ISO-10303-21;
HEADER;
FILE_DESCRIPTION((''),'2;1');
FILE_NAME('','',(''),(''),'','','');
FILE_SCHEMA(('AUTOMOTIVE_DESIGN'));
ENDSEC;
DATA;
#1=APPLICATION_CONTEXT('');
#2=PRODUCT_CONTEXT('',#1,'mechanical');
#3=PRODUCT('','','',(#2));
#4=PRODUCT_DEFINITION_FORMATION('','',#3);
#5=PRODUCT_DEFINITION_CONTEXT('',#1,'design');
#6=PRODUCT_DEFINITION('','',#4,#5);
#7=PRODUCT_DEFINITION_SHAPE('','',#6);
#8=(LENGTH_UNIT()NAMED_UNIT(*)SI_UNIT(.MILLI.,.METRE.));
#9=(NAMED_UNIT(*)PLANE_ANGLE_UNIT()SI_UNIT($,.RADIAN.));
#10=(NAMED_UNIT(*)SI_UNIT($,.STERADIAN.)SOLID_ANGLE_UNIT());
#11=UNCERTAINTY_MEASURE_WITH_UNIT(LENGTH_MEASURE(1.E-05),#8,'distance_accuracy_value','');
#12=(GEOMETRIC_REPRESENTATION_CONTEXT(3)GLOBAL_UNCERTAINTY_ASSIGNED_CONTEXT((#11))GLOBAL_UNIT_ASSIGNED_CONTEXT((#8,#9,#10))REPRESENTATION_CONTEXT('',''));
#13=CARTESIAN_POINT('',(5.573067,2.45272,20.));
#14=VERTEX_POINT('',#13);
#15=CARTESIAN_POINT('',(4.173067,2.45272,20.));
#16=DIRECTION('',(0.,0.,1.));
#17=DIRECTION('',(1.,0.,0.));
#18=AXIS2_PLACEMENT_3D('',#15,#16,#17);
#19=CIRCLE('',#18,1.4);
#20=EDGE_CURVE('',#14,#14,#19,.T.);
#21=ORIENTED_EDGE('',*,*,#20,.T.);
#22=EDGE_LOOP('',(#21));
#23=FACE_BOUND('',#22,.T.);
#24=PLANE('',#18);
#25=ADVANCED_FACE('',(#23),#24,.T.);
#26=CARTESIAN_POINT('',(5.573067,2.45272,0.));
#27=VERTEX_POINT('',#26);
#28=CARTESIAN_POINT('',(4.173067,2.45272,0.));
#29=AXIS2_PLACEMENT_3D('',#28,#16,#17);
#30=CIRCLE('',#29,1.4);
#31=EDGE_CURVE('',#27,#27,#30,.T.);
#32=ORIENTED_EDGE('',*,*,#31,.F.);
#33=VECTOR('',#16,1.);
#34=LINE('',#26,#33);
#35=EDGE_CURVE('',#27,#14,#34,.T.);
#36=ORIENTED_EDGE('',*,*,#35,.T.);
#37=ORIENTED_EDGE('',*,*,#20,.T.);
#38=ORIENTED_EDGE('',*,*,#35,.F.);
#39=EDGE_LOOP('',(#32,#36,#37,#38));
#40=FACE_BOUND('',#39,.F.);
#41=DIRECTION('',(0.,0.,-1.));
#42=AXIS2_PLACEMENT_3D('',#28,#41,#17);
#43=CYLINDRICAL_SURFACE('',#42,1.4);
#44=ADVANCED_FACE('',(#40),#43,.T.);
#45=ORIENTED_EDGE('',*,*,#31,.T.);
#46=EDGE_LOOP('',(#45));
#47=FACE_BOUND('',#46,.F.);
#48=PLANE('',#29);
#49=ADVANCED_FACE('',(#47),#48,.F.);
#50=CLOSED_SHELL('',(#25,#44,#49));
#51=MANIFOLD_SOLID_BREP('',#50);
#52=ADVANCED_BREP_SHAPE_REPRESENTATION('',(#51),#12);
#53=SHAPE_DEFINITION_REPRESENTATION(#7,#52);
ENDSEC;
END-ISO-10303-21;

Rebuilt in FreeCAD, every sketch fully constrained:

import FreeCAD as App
import Part
import Sketcher

V = App.Vector

doc = App.newDocument("Part")
body = doc.addObject("PartDesign::Body", "Body")

# Sketch on XY plane
sketch1 = body.newObject("Sketcher::SketchObject", "Sketch")
sketch1.AttachmentSupport = (doc.getObject("XY_Plane"), [""])
sketch1.MapMode = "FlatFace"
sketch1.addGeometry(Part.Circle(V(4.2, 2.5, 0), V(0, 0, 1), 1.4), False)
sketch1.addConstraint([
    Sketcher.Constraint("Diameter", 0, 2.8),
    Sketcher.Constraint("DistanceY", -1, 1, 0, 3, 2.45272),
    Sketcher.Constraint("DistanceX", -1, 1, 0, 3, 4.173067),
])
pad1 = body.newObject("PartDesign::Pad", "Pad")
pad1.Profile = sketch1
pad1.Length = 20

doc.recompute()
